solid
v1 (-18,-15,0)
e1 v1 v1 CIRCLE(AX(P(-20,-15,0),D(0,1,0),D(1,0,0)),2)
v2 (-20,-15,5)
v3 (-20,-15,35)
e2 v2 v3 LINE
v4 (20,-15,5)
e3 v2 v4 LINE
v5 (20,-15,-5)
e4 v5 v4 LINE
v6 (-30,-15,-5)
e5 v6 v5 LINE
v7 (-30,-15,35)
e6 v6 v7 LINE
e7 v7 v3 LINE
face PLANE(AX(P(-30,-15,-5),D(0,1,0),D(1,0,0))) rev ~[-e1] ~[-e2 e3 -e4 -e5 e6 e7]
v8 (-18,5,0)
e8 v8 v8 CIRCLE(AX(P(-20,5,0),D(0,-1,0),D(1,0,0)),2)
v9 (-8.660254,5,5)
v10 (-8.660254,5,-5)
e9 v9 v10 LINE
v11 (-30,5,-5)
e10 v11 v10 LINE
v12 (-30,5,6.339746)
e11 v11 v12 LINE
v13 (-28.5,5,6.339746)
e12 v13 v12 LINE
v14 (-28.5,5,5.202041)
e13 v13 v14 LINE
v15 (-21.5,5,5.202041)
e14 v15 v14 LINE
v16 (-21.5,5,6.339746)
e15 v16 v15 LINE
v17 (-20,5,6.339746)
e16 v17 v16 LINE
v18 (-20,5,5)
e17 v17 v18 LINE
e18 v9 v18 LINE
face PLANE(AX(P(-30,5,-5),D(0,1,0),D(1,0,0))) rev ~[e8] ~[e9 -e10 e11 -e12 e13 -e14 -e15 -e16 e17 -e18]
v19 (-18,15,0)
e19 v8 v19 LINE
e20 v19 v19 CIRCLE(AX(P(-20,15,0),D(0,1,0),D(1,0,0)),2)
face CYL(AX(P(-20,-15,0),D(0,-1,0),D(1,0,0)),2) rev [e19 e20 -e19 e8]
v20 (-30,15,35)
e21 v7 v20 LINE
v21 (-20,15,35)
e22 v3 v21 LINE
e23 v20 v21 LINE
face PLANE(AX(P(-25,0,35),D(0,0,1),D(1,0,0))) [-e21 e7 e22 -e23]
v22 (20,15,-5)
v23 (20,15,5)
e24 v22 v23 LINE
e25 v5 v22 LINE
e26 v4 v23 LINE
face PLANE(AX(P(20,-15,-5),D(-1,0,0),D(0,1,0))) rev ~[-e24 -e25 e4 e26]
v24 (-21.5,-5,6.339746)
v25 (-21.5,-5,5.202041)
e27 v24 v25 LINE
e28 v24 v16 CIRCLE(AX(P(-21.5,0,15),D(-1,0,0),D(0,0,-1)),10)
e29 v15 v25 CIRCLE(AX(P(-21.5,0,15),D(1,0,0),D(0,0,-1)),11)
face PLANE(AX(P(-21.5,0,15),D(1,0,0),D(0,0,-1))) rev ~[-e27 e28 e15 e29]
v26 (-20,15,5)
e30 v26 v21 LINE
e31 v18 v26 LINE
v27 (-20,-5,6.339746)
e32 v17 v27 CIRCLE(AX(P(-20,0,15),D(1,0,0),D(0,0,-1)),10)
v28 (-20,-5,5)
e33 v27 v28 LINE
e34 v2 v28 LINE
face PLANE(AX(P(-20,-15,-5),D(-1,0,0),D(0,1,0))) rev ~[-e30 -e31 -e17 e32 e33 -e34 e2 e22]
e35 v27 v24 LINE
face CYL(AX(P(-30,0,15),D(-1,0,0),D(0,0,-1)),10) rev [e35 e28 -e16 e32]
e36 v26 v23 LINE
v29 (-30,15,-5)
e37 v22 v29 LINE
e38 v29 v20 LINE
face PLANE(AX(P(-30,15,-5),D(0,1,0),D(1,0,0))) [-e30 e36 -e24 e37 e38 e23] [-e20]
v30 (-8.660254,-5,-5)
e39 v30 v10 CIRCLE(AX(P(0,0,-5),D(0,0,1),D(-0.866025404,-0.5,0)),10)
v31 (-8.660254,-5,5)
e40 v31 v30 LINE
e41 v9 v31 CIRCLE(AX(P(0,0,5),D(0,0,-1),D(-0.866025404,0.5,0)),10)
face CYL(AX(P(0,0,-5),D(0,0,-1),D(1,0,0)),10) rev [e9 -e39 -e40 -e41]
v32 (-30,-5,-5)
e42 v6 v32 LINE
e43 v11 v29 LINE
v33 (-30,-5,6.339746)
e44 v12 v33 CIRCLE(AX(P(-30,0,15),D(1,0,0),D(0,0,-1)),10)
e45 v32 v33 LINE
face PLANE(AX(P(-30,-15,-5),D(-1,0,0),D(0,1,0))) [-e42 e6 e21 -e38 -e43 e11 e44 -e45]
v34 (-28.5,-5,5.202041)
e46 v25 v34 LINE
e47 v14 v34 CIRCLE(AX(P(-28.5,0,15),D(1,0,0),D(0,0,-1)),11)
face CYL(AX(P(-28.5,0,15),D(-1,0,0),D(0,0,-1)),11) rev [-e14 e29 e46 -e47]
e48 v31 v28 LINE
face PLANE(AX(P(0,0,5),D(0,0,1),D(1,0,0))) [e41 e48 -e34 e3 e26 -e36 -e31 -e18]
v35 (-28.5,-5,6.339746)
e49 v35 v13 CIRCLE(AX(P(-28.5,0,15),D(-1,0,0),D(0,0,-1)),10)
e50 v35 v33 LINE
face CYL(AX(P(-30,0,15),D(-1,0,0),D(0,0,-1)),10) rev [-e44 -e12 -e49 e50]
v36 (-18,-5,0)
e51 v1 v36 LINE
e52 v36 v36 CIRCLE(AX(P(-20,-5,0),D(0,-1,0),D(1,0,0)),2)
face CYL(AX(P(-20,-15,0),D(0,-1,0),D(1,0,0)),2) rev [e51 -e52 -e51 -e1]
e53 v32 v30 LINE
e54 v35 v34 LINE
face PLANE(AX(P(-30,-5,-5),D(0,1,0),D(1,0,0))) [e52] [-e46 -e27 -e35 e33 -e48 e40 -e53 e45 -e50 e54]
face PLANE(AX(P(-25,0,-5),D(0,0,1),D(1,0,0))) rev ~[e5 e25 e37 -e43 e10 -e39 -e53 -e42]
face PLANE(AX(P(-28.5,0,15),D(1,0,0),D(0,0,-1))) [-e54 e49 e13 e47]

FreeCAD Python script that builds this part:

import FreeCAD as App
import Part
import Sketcher

V = App.Vector
Q = App.Units.Quantity

doc = App.newDocument("Part")
body = doc.addObject("PartDesign::Body", "Body")

# Sketch on XY plane
sketch1 = body.newObject("Sketcher::SketchObject", "Sketch")
sketch1.AttachmentSupport = (doc.getObject("XY_Plane"), [""])
sketch1.MapMode = "FlatFace"
sketch1.AttachmentOffset = App.Placement(V(0, 0, -5), App.Rotation())
sketch1.addGeometry(Part.Circle(V(0, 0, 0), V(0, 0, 1), 10), False)
sketch1.addConstraint([
    Sketcher.Constraint("Coincident", 0, 3, -1, 1),
    Sketcher.Constraint("Diameter", 0, Q("20 mm")),
])
pad1 = body.newObject("PartDesign::Pad", "Pad")
pad1.Profile = sketch1
pad1.Length = 10
body2 = doc.addObject("PartDesign::Body", "Body001")

# Sketch on XY plane
sketch2 = body2.newObject("Sketcher::SketchObject", "Sketch001")
sketch2.AttachmentSupport = (doc.getObject("XY_Plane001"), [""])
sketch2.MapMode = "FlatFace"
sketch2.addGeometry(Part.Circle(V(0, 0, 0), V(0, 0, 1), 2), False)
sketch2.addConstraint([
    Sketcher.Constraint("Coincident", 0, 3, -1, 1),
    Sketcher.Constraint("Diameter", 0, Q("4 mm")),
])
pad2 = body2.newObject("PartDesign::Pad", "Pad001")
pad2.Profile = sketch2
pad2.Length = 30
body3 = doc.addObject("PartDesign::Body", "Body002")
doc.recompute()

body2.Placement = App.Placement(V(0, 0, 0), App.Rotation(V(1, 0, 0), 270))
boolean = body3.newObject("PartDesign::Boolean", "Boolean")
boolean.Type = "Fuse"
boolean.addObjects([body2])
body4 = doc.addObject("PartDesign::Body", "Body003")
doc.recompute()

body3.Placement = App.Placement(V(-20, -15, 0), App.Rotation(V(0, 0, 1), 0))
boolean2 = body4.newObject("PartDesign::Boolean", "Boolean001")
boolean2.Type = "Fuse"
boolean2.addObjects([body3])
body5 = doc.addObject("PartDesign::Body", "Body004")

# Sketch on XY plane
sketch3 = body5.newObject("Sketcher::SketchObject", "Sketch002")
sketch3.AttachmentSupport = (doc.getObject("XY_Plane004"), [""])
sketch3.MapMode = "FlatFace"
sketch3.addGeometry(Part.Circle(V(0, 0, 0), V(0, 0, 1), 11), False)
sketch3.addConstraint([
    Sketcher.Constraint("Coincident", 0, 3, -1, 1),
    Sketcher.Constraint("Diameter", 0, Q("22 mm")),
])
pad3 = body5.newObject("PartDesign::Pad", "Pad002")
pad3.Profile = sketch3
pad3.Length = 7
body6 = doc.addObject("PartDesign::Body", "Body005")
doc.recompute()

body5.Placement = App.Placement(V(0, 0, 0), App.Rotation(V(0, 1, 0), 90))
boolean3 = body6.newObject("PartDesign::Boolean", "Boolean002")
boolean3.Type = "Fuse"
boolean3.addObjects([body5])
body7 = doc.addObject("PartDesign::Body", "Body006")
doc.recompute()

body6.Placement = App.Placement(V(-28.5, 0, 15), App.Rotation(V(0, 0, 1), 0))
boolean4 = body7.newObject("PartDesign::Boolean", "Boolean003")
boolean4.Type = "Fuse"
boolean4.addObjects([body6])
body8 = doc.addObject("PartDesign::Body", "Body007")

# Sketch on XY plane
sketch4 = body8.newObject("Sketcher::SketchObject", "Sketch003")
sketch4.AttachmentSupport = (doc.getObject("XY_Plane007"), [""])
sketch4.MapMode = "FlatFace"
sketch4.addGeometry(Part.Circle(V(0, 0, 0), V(0, 0, 1), 10), False)
sketch4.addConstraint([
    Sketcher.Constraint("Coincident", 0, 3, -1, 1),
    Sketcher.Constraint("Diameter", 0, Q("20 mm")),
])
pad4 = body8.newObject("PartDesign::Pad", "Pad003")
pad4.Profile = sketch4
pad4.Length = 10
body9 = doc.addObject("PartDesign::Body", "Body008")
doc.recompute()

body8.Placement = App.Placement(V(0, 0, 0), App.Rotation(V(0, 1, 0), 90))
boolean5 = body9.newObject("PartDesign::Boolean", "Boolean004")
boolean5.Type = "Fuse"
boolean5.addObjects([body8])
body10 = doc.addObject("PartDesign::Body", "Body009")
doc.recompute()

body9.Placement = App.Placement(V(-30, 0, 15), App.Rotation(V(0, 0, 1), 0))
boolean6 = body10.newObject("PartDesign::Boolean", "Boolean005")
boolean6.Type = "Fuse"
boolean6.addObjects([body9])
body11 = doc.addObject("PartDesign::Body", "Body010")

# Sketch on XY plane
sketch5 = body11.newObject("Sketcher::SketchObject", "Sketch004")
sketch5.AttachmentSupport = (doc.getObject("XY_Plane010"), [""])
sketch5.MapMode = "FlatFace"
sketch5.AttachmentOffset = App.Placement(V(0, 0, -5), App.Rotation())
sketch5.addGeometry([
    Part.LineSegment(V(-30, 5, 0), V(-30, -5, 0)),
    Part.LineSegment(V(-30, -5, 0), V(-5, -5, 0)),
    Part.LineSegment(V(-5, -5, 0), V(-5, 5, 0)),
    Part.LineSegment(V(-5, 5, 0), V(-30, 5, 0)),
], False)
sketch5.addConstraint([
    Sketcher.Constraint("Coincident", 0, 2, 1, 1),
    Sketcher.Constraint("Coincident", 1, 2, 2, 1),
    Sketcher.Constraint("Coincident", 2, 2, 3, 1),
    Sketcher.Constraint("Coincident", 3, 2, 0, 1),
    Sketcher.Constraint("Vertical", 0),
    Sketcher.Constraint("Horizontal", 1),
    Sketcher.Constraint("Vertical", 2),
    Sketcher.Constraint("Horizontal", 3),
    Sketcher.Constraint("DistanceX", 1, 1, 1, 2, Q("25 mm")),
    Sketcher.Constraint("DistanceY", 0, 2, 0, 1, Q("10 mm")),
    Sketcher.Constraint("DistanceX", 0, 2, -1, 1, Q("30 mm")),
    Sketcher.Constraint("DistanceY", 0, 2, -1, 1, Q("5 mm")),
])
pad5 = body11.newObject("PartDesign::Pad", "Pad004")
pad5.Profile = sketch5
pad5.Length = 15
doc.recompute()

boolean7 = body11.newObject("PartDesign::Boolean", "Boolean006")
boolean7.Type = "Fuse"
boolean7.addObjects([body])
doc.recompute()

boolean8 = body11.newObject("PartDesign::Boolean", "Boolean007")
boolean8.Type = "Fuse"
boolean8.addObjects([body4])
doc.recompute()

boolean9 = body11.newObject("PartDesign::Boolean", "Boolean008")
boolean9.Type = "Fuse"
boolean9.addObjects([body7])
doc.recompute()

boolean10 = body11.newObject("PartDesign::Boolean", "Boolean009")
boolean10.Type = "Fuse"
boolean10.addObjects([body10])
body12 = doc.addObject("PartDesign::Body", "Body011")

# Sketch on XY plane
sketch6 = body12.newObject("Sketcher::SketchObject", "Sketch005")
sketch6.AttachmentSupport = (doc.getObject("XY_Plane011"), [""])
sketch6.MapMode = "FlatFace"
sketch6.AttachmentOffset = App.Placement(V(0, 0, -5), App.Rotation())
sketch6.addGeometry([
    Part.LineSegment(V(-30, 15, 0), V(-30, -15, 0)),
    Part.LineSegment(V(-30, -15, 0), V(-20, -15, 0)),
    Part.LineSegment(V(-20, -15, 0), V(-20, 15, 0)),
    Part.LineSegment(V(-20, 15, 0), V(-30, 15, 0)),
], False)
sketch6.addConstraint([
    Sketcher.Constraint("Coincident", 0, 2, 1, 1),
    Sketcher.Constraint("Coincident", 1, 2, 2, 1),
    Sketcher.Constraint("Coincident", 2, 2, 3, 1),
    Sketcher.Constraint("Coincident", 3, 2, 0, 1),
    Sketcher.Constraint("Vertical", 0),
    Sketcher.Constraint("Horizontal", 1),
    Sketcher.Constraint("Vertical", 2),
    Sketcher.Constraint("Horizontal", 3),
    Sketcher.Constraint("DistanceX", 1, 1, 1, 2, Q("10 mm")),
    Sketcher.Constraint("DistanceY", 0, 2, 0, 1, Q("30 mm")),
    Sketcher.Constraint("DistanceX", 0, 2, -1, 1, Q("30 mm")),
    Sketcher.Constraint("DistanceY", 0, 2, -1, 1, Q("15 mm")),
])
pad6 = body12.newObject("PartDesign::Pad", "Pad005")
pad6.Profile = sketch6
pad6.Length = 40
body13 = doc.addObject("PartDesign::Body", "Body012")

# Sketch on XY plane
sketch7 = body13.newObject("Sketcher::SketchObject", "Sketch006")
sketch7.AttachmentSupport = (doc.getObject("XY_Plane012"), [""])
sketch7.MapMode = "FlatFace"
sketch7.AttachmentOffset = App.Placement(V(0, 0, -5), App.Rotation())
sketch7.addGeometry([
    Part.LineSegment(V(-20, 15, 0), V(-20, -15, 0)),
    Part.LineSegment(V(-20, -15, 0), V(20, -15, 0)),
    Part.LineSegment(V(20, -15, 0), V(20, 15, 0)),
    Part.LineSegment(V(20, 15, 0), V(-20, 15, 0)),
], False)
sketch7.addConstraint([
    Sketcher.Constraint("Coincident", 0, 2, 1, 1),
    Sketcher.Constraint("Coincident", 1, 2, 2, 1),
    Sketcher.Constraint("Coincident", 2, 2, 3, 1),
    Sketcher.Constraint("Coincident", 3, 2, 0, 1),
    Sketcher.Constraint("Vertical", 0),
    Sketcher.Constraint("Horizontal", 1),
    Sketcher.Constraint("Vertical", 2),
    Sketcher.Constraint("Horizontal", 3),
    Sketcher.Constraint("Symmetric", 0, 2, 2, 2, -1, 1),
    Sketcher.Constraint("DistanceX", 1, 1, 1, 2, Q("40 mm")),
    Sketcher.Constraint("DistanceY", 0, 2, 0, 1, Q("30 mm")),
])
pad7 = body13.newObject("PartDesign::Pad", "Pad006")
pad7.Profile = sketch7
pad7.Length = 10
doc.recompute()

boolean11 = body13.newObject("PartDesign::Boolean", "Boolean010")
boolean11.Type = "Fuse"
boolean11.addObjects([body12])
doc.recompute()

boolean12 = body13.newObject("PartDesign::Boolean", "Boolean011")
boolean12.Type = "Cut"
boolean12.addObjects([body11])

doc.recompute()
